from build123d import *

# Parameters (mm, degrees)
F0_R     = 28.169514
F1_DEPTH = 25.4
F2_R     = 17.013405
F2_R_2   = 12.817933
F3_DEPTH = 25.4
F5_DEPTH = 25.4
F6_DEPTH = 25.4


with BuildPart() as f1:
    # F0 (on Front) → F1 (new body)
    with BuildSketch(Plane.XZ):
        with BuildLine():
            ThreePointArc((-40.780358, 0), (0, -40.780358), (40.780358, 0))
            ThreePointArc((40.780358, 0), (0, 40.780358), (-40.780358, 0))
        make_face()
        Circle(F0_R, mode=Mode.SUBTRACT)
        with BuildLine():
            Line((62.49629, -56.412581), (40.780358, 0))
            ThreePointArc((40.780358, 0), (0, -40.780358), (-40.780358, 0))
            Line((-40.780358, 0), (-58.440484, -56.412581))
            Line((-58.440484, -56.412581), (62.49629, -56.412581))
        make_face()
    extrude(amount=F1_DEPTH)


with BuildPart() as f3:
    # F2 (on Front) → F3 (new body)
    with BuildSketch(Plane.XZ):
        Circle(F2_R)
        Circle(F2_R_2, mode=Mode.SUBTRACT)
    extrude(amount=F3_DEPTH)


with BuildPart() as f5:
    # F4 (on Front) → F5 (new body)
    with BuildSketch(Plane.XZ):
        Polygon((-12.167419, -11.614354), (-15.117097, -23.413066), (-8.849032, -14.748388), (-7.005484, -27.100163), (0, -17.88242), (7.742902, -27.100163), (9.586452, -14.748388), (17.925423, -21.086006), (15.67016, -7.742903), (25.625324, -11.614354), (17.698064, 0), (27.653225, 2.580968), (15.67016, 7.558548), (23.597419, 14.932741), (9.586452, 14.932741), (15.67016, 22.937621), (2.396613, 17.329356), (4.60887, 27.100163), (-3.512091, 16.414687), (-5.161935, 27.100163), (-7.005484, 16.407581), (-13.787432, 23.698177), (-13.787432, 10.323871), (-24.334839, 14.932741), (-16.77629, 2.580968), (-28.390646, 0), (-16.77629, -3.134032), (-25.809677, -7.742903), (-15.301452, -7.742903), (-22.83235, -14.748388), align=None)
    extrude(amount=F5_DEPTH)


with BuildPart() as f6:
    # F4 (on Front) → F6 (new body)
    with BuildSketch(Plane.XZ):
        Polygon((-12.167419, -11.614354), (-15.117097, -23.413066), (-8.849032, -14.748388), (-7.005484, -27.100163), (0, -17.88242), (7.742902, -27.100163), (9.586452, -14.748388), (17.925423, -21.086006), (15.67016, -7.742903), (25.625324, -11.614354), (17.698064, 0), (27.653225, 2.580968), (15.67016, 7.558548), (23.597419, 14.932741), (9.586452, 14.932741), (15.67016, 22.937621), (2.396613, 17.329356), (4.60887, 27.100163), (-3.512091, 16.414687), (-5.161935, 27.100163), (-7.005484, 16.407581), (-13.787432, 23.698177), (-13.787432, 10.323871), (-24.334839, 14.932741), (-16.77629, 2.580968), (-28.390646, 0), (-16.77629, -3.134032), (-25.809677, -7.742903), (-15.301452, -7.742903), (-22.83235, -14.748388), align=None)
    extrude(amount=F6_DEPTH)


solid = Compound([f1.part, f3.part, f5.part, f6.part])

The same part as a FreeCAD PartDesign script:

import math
import FreeCAD as App
import Part
import Sketcher
from FreeCAD import Vector
Q = App.Units.Quantity

doc = App.newDocument("Part")
params = doc.addObject("Spreadsheet::Sheet", "Params")
for row, (alias, value) in enumerate([
    ("pad1_length", "1 in"),
    ("pad2_length", "1 in"),
    ("pad3_length", "1 in"),
    ("pad4_length", "1 in"),
], start=1):
    params.set(f"A{row}", alias)
    params.set(f"B{row}", "=" + value)
    params.setAlias(f"B{row}", alias)

body = doc.addObject("PartDesign::Body", "Body")

sketch1 = body.newObject("Sketcher::SketchObject", "Sketch")
sketch1.AttachmentSupport = (doc.getObject("XZ_Plane"), [""])
sketch1.MapMode = "FlatFace"
sketch1.addGeometry([
    Part.ArcOfCircle(Part.Circle(Vector(0, 0, 0), Vector(0, 0, 1), 40.780358), math.radians(0), math.radians(180)),
    Part.LineSegment(Vector(-40.780358, 0, 0), Vector(-58.440484, -56.412581, 0)),
    Part.LineSegment(Vector(-58.440484, -56.412581, 0), Vector(62.49629, -56.412581, 0)),
    Part.LineSegment(Vector(62.49629, -56.412581, 0), Vector(40.780358, 0, 0)),
    Part.Circle(Vector(0, 0, 0), Vector(0, 0, 1), 28.169514),
], False)
sketch1.addConstraint([
    Sketcher.Constraint("Coincident", 0, 2, 1, 1),
    Sketcher.Constraint("Coincident", 1, 2, 2, 1),
    Sketcher.Constraint("Coincident", 2, 2, 3, 1),
    Sketcher.Constraint("Coincident", 3, 2, 0, 1),
    Sketcher.Constraint("Horizontal", 2),
    Sketcher.Constraint("Coincident", 0, 3, -1, 1),
    Sketcher.Constraint("Coincident", 4, 3, -1, 1),
    Sketcher.Constraint("PointOnObject", 0, 2, -1),
    Sketcher.Constraint("PointOnObject", 3, 2, -1),
    Sketcher.Constraint("Diameter", 4, 56.339028),
    Sketcher.Constraint("Radius", 0, 40.780358),
    Sketcher.Constraint("Distance", 1, 59.112261),
    Sketcher.Constraint("DistanceX", 2, 1, 2, 2, 120.936774),
    Sketcher.Constraint("DistanceY", 1, 2, -1, 1, 56.412581),
])
pad1 = body.newObject("PartDesign::Pad", "Pad")
pad1.Profile = sketch1
pad1.setExpression("Length", "Params.pad1_length")
body2 = doc.addObject("PartDesign::Body", "Body001")

sketch2 = body2.newObject("Sketcher::SketchObject", "Sketch001")
sketch2.AttachmentSupport = (doc.getObject("XZ_Plane001"), [""])
sketch2.MapMode = "FlatFace"
sketch2.addGeometry([
    Part.Circle(Vector(0, 0, 0), Vector(0, 0, 1), 17.013405),
    Part.Circle(Vector(0, 0, 0), Vector(0, 0, 1), 12.817933),
], False)
sketch2.addConstraint([
    Sketcher.Constraint("Coincident", 0, 3, -1, 1),
    Sketcher.Constraint("Coincident", 1, 3, -1, 1),
    Sketcher.Constraint("Diameter", 0, 34.02681),
    Sketcher.Constraint("Diameter", 1, 25.635866),
])
pad2 = body2.newObject("PartDesign::Pad", "Pad001")
pad2.Profile = sketch2
pad2.setExpression("Length", "Params.pad2_length")
body3 = doc.addObject("PartDesign::Body", "Body002")

sketch3 = body3.newObject("Sketcher::SketchObject", "Sketch002")
sketch3.AttachmentSupport = (doc.getObject("XZ_Plane002"), [""])
sketch3.MapMode = "FlatFace"
sketch3.addGeometry([
    Part.LineSegment(Vector(-12.167419, -11.614354, 0), Vector(-15.117097, -23.413066, 0)),
    Part.LineSegment(Vector(-15.117097, -23.413066, 0), Vector(-8.849032, -14.748388, 0)),
    Part.LineSegment(Vector(-8.849032, -14.748388, 0), Vector(-7.005484, -27.100163, 0)),
    Part.LineSegment(Vector(-7.005484, -27.100163, 0), Vector(0, -17.88242, 0)),
    Part.LineSegment(Vector(0, -17.88242, 0), Vector(7.742902, -27.100163, 0)),
    Part.LineSegment(Vector(7.742902, -27.100163, 0), Vector(9.586452, -14.748388, 0)),
    Part.LineSegment(Vector(9.586452, -14.748388, 0), Vector(17.925423, -21.086006, 0)),
    Part.LineSegment(Vector(17.925423, -21.086006, 0), Vector(15.67016, -7.742903, 0)),
    Part.LineSegment(Vector(15.67016, -7.742903, 0), Vector(25.625324, -11.614354, 0)),
    Part.LineSegment(Vector(25.625324, -11.614354, 0), Vector(17.698064, 0, 0)),
    Part.LineSegment(Vector(17.698064, 0, 0), Vector(27.653225, 2.580968, 0)),
    Part.LineSegment(Vector(27.653225, 2.580968, 0), Vector(15.67016, 7.558548, 0)),
    Part.LineSegment(Vector(15.67016, 7.558548, 0), Vector(23.597419, 14.932741, 0)),
    Part.LineSegment(Vector(23.597419, 14.932741, 0), Vector(9.586452, 14.932741, 0)),
    Part.LineSegment(Vector(9.586452, 14.932741, 0), Vector(15.67016, 22.937621, 0)),
    Part.LineSegment(Vector(15.67016, 22.937621, 0), Vector(2.396613, 17.329356, 0)),
    Part.LineSegment(Vector(2.396613, 17.329356, 0), Vector(4.60887, 27.100163, 0)),
    Part.LineSegment(Vector(4.60887, 27.100163, 0), Vector(-3.512091, 16.414687, 0)),
    Part.LineSegment(Vector(-3.512091, 16.414687, 0), Vector(-5.161935, 27.100163, 0)),
    Part.LineSegment(Vector(-5.161935, 27.100163, 0), Vector(-7.005484, 16.407581, 0)),
    Part.LineSegment(Vector(-7.005484, 16.407581, 0), Vector(-13.787432, 23.698177, 0)),
    Part.LineSegment(Vector(-13.787432, 23.698177, 0), Vector(-13.787432, 10.323871, 0)),
    Part.LineSegment(Vector(-13.787432, 10.323871, 0), Vector(-24.334839, 14.932741, 0)),
    Part.LineSegment(Vector(-24.334839, 14.932741, 0), Vector(-16.77629, 2.580968, 0)),
    Part.LineSegment(Vector(-16.77629, 2.580968, 0), Vector(-28.390646, 0, 0)),
    Part.LineSegment(Vector(-28.390646, 0, 0), Vector(-16.77629, -3.134032, 0)),
    Part.LineSegment(Vector(-16.77629, -3.134032, 0), Vector(-25.809677, -7.742903, 0)),
    Part.LineSegment(Vector(-25.809677, -7.742903, 0), Vector(-15.301452, -7.742903, 0)),
    Part.LineSegment(Vector(-15.301452, -7.742903, 0), Vector(-22.83235, -14.748388, 0)),
    Part.LineSegment(Vector(-22.83235, -14.748388, 0), Vector(-12.167419, -11.614354, 0)),
], False)
sketch3.addConstraint([
    Sketcher.Constraint("Coincident", 0, 2, 1, 1),
    Sketcher.Constraint("Coincident", 1, 2, 2, 1),
    Sketcher.Constraint("Coincident", 2, 2, 3, 1),
    Sketcher.Constraint("Coincident", 3, 2, 4, 1),
    Sketcher.Constraint("Coincident", 4, 2, 5, 1),
    Sketcher.Constraint("Coincident", 5, 2, 6, 1),
    Sketcher.Constraint("Coincident", 6, 2, 7, 1),
    Sketcher.Constraint("Coincident", 7, 2, 8, 1),
    Sketcher.Constraint("Coincident", 8, 2, 9, 1),
    Sketcher.Constraint("Coincident", 9, 2, 10, 1),
    Sketcher.Constraint("Coincident", 10, 2, 11, 1),
    Sketcher.Constraint("Coincident", 11, 2, 12, 1),
    Sketcher.Constraint("Coincident", 12, 2, 13, 1),
    Sketcher.Constraint("Coincident", 13, 2, 14, 1),
    Sketcher.Constraint("Coincident", 14, 2, 15, 1),
    Sketcher.Constraint("Coincident", 15, 2, 16, 1),
    Sketcher.Constraint("Coincident", 16, 2, 17, 1),
    Sketcher.Constraint("Coincident", 17, 2, 18, 1),
    Sketcher.Constraint("Coincident", 18, 2, 19, 1),
    Sketcher.Constraint("Coincident", 19, 2, 20, 1),
    Sketcher.Constraint("Coincident", 20, 2, 21, 1),
    Sketcher.Constraint("Coincident", 21, 2, 22, 1),
    Sketcher.Constraint("Coincident", 22, 2, 23, 1),
    Sketcher.Constraint("Coincident", 23, 2, 24, 1),
    Sketcher.Constraint("Coincident", 24, 2, 25, 1),
    Sketcher.Constraint("Coincident", 25, 2, 26, 1),
    Sketcher.Constraint("Coincident", 26, 2, 27, 1),
    Sketcher.Constraint("Coincident", 27, 2, 28, 1),
    Sketcher.Constraint("Coincident", 28, 2, 29, 1),
    Sketcher.Constraint("Coincident", 29, 2, 0, 1),
    Sketcher.Constraint("Horizontal", 13),
    Sketcher.Constraint("Vertical", 21),
    Sketcher.Constraint("Horizontal", 27),
    Sketcher.Constraint("PointOnObject", 3, 2, -2),
    Sketcher.Constraint("PointOnObject", 9, 2, -1),
    Sketcher.Constraint("PointOnObject", 24, 2, -1),
    Sketcher.Constraint("Perpendicular", 3, 6),
    Sketcher.Constraint("Perpendicular", 6, 14),
    Sketcher.Constraint("Parallel", 14, 17),
    Sketcher.Constraint("Perpendicular", 12, 20),
    Sketcher.Constraint("Perpendicular", 20, 28),
    Sketcher.Constraint("Horizontal", 2, 2, 4, 2),
    Sketcher.Constraint("Horizontal", 1, 2, 5, 2),
    Sketcher.Constraint("Horizontal", 16, 2, 18, 2),
    Sketcher.Constraint("Horizontal", 13, 2, 22, 2),
    Sketcher.Constraint("Horizontal", 10, 2, 23, 2),
    Sketcher.Constraint("Horizontal", 7, 2, 26, 2),
    Sketcher.Constraint("Horizontal", 5, 2, 28, 2),
    Sketcher.Constraint("Horizontal", 8, 2, 29, 2),
    Sketcher.Constraint("Vertical", 7, 2, 11, 2),
    Sketcher.Constraint("Vertical", 5, 2, 13, 2),
    Sketcher.Constraint("Vertical", 11, 2, 14, 2),
    Sketcher.Constraint("Vertical", 2, 2, 19, 2),
    Sketcher.Constraint("Vertical", 23, 2, 25, 2),
    Sketcher.Constraint("Equal", 2, 5),
    Sketcher.Constraint("DistanceX", 0, 2, 4, 2, Q("0.9 in")),
    Sketcher.Constraint("DistanceY", 25, 2, 23, 2, Q("0.225 in")),
    Sketcher.Constraint("DistanceX", 6, 2, 8, 2, 7.699901),
    Sketcher.Constraint("DistanceX", 8, 2, 10, 2, 2.027901),
    Sketcher.Constraint("DistanceX", 20, 2, 16, 2, 18.396302),
    Sketcher.Constraint("DistanceX", 23, 2, 17, 2, 13.264199),
    Sketcher.Constraint("DistanceX", 28, 2, 27, 2, 7.530898),
    Sketcher.Constraint("Distance", 1, 10.694171),
    Sketcher.Constraint("Distance", 3, 11.57772),
    Sketcher.Constraint("Distance", 6, 10.47396),
    Sketcher.Constraint("Distance", 10, 10.28429),
    Sketcher.Constraint("Distance", 15, 14.409708),
    Sketcher.Constraint("Distance", 16, 10.018121),
    Sketcher.Constraint("Distance", 17, 13.42123),
    Sketcher.Constraint("Distance", 20, 9.957289),
    Sketcher.Constraint("Distance", 23, 14.480952),
    Sketcher.Constraint("Distance", 26, 10.141192),
    Sketcher.Constraint("DistanceX", 13, 2, 13, 1, 14.010967),
    Sketcher.Constraint("DistanceX", 27, 1, 27, 2, 10.508225),
    Sketcher.Constraint("DistanceY", 21, 2, 21, 1, 13.374306),
    Sketcher.Constraint("DistanceX", 1, 2, -1, 1, 8.849032),
    Sketcher.Constraint("DistanceY", 3, 2, -1, 1, 17.88242),
    Sketcher.Constraint("DistanceX", -1, 1, 7, 2, 15.67016),
    Sketcher.Constraint("DistanceX", -1, 1, 12, 2, 23.597419),
    Sketcher.Constraint("DistanceY", -1, 1, 12, 2, 14.932741),
    Sketcher.Constraint("DistanceY", -1, 1, 14, 2, 22.937621),
    Sketcher.Constraint("DistanceX", -1, 1, 16, 2, 4.60887),
    Sketcher.Constraint("DistanceY", -1, 1, 19, 2, 16.407581),
    Sketcher.Constraint("DistanceX", 22, 2, -1, 1, 24.334839),
    Sketcher.Constraint("DistanceX", 27, 2, -1, 1, 15.301452),
    Sketcher.Constraint("DistanceX", 29, 2, -1, 1, 12.167419),
    Sketcher.Constraint("DistanceY", 8, 2, 7, 2, 3.871451),
    Sketcher.Constraint("DistanceX", 15, 2, 13, 2, 7.189839),
    Sketcher.Constraint("DistanceX", 19, 2, 18, 2, 1.843549),
    Sketcher.Constraint("DistanceX", 24, 2, 0, 2, 13.273549),
])
pad3 = body3.newObject("PartDesign::Pad", "Pad002")
pad3.Profile = sketch3
pad3.setExpression("Length", "Params.pad3_length")
body4 = doc.addObject("PartDesign::Body", "Body003")

sketch4 = body4.newObject("Sketcher::SketchObject", "Sketch003")
sketch4.AttachmentSupport = (doc.getObject("XZ_Plane003"), [""])
sketch4.MapMode = "FlatFace"
sketch4.addGeometry([
    Part.LineSegment(Vector(-12.167419, -11.614354, 0), Vector(-15.117097, -23.413066, 0)),
    Part.LineSegment(Vector(-15.117097, -23.413066, 0), Vector(-8.849032, -14.748388, 0)),
    Part.LineSegment(Vector(-8.849032, -14.748388, 0), Vector(-7.005484, -27.100163, 0)),
    Part.LineSegment(Vector(-7.005484, -27.100163, 0), Vector(0, -17.88242, 0)),
    Part.LineSegment(Vector(0, -17.88242, 0), Vector(7.742902, -27.100163, 0)),
    Part.LineSegment(Vector(7.742902, -27.100163, 0), Vector(9.586452, -14.748388, 0)),
    Part.LineSegment(Vector(9.586452, -14.748388, 0), Vector(17.925423, -21.086006, 0)),
    Part.LineSegment(Vector(17.925423, -21.086006, 0), Vector(15.67016, -7.742903, 0)),
    Part.LineSegment(Vector(15.67016, -7.742903, 0), Vector(25.625324, -11.614354, 0)),
    Part.LineSegment(Vector(25.625324, -11.614354, 0), Vector(17.698064, 0, 0)),
    Part.LineSegment(Vector(17.698064, 0, 0), Vector(27.653225, 2.580968, 0)),
    Part.LineSegment(Vector(27.653225, 2.580968, 0), Vector(15.67016, 7.558548, 0)),
    Part.LineSegment(Vector(15.67016, 7.558548, 0), Vector(23.597419, 14.932741, 0)),
    Part.LineSegment(Vector(23.597419, 14.932741, 0), Vector(9.586452, 14.932741, 0)),
    Part.LineSegment(Vector(9.586452, 14.932741, 0), Vector(15.67016, 22.937621, 0)),
    Part.LineSegment(Vector(15.67016, 22.937621, 0), Vector(2.396613, 17.329356, 0)),
    Part.LineSegment(Vector(2.396613, 17.329356, 0), Vector(4.60887, 27.100163, 0)),
    Part.LineSegment(Vector(4.60887, 27.100163, 0), Vector(-3.512091, 16.414687, 0)),
    Part.LineSegment(Vector(-3.512091, 16.414687, 0), Vector(-5.161935, 27.100163, 0)),
    Part.LineSegment(Vector(-5.161935, 27.100163, 0), Vector(-7.005484, 16.407581, 0)),
    Part.LineSegment(Vector(-7.005484, 16.407581, 0), Vector(-13.787432, 23.698177, 0)),
    Part.LineSegment(Vector(-13.787432, 23.698177, 0), Vector(-13.787432, 10.323871, 0)),
    Part.LineSegment(Vector(-13.787432, 10.323871, 0), Vector(-24.334839, 14.932741, 0)),
    Part.LineSegment(Vector(-24.334839, 14.932741, 0), Vector(-16.77629, 2.580968, 0)),
    Part.LineSegment(Vector(-16.77629, 2.580968, 0), Vector(-28.390646, 0, 0)),
    Part.LineSegment(Vector(-28.390646, 0, 0), Vector(-16.77629, -3.134032, 0)),
    Part.LineSegment(Vector(-16.77629, -3.134032, 0), Vector(-25.809677, -7.742903, 0)),
    Part.LineSegment(Vector(-25.809677, -7.742903, 0), Vector(-15.301452, -7.742903, 0)),
    Part.LineSegment(Vector(-15.301452, -7.742903, 0), Vector(-22.83235, -14.748388, 0)),
    Part.LineSegment(Vector(-22.83235, -14.748388, 0), Vector(-12.167419, -11.614354, 0)),
], False)
sketch4.addConstraint([
    Sketcher.Constraint("Coincident", 0, 2, 1, 1),
    Sketcher.Constraint("Coincident", 1, 2, 2, 1),
    Sketcher.Constraint("Coincident", 2, 2, 3, 1),
    Sketcher.Constraint("Coincident", 3, 2, 4, 1),
    Sketcher.Constraint("Coincident", 4, 2, 5, 1),
    Sketcher.Constraint("Coincident", 5, 2, 6, 1),
    Sketcher.Constraint("Coincident", 6, 2, 7, 1),
    Sketcher.Constraint("Coincident", 7, 2, 8, 1),
    Sketcher.Constraint("Coincident", 8, 2, 9, 1),
    Sketcher.Constraint("Coincident", 9, 2, 10, 1),
    Sketcher.Constraint("Coincident", 10, 2, 11, 1),
    Sketcher.Constraint("Coincident", 11, 2, 12, 1),
    Sketcher.Constraint("Coincident", 12, 2, 13, 1),
    Sketcher.Constraint("Coincident", 13, 2, 14, 1),
    Sketcher.Constraint("Coincident", 14, 2, 15, 1),
    Sketcher.Constraint("Coincident", 15, 2, 16, 1),
    Sketcher.Constraint("Coincident", 16, 2, 17, 1),
    Sketcher.Constraint("Coincident", 17, 2, 18, 1),
    Sketcher.Constraint("Coincident", 18, 2, 19, 1),
    Sketcher.Constraint("Coincident", 19, 2, 20, 1),
    Sketcher.Constraint("Coincident", 20, 2, 21, 1),
    Sketcher.Constraint("Coincident", 21, 2, 22, 1),
    Sketcher.Constraint("Coincident", 22, 2, 23, 1),
    Sketcher.Constraint("Coincident", 23, 2, 24, 1),
    Sketcher.Constraint("Coincident", 24, 2, 25, 1),
    Sketcher.Constraint("Coincident", 25, 2, 26, 1),
    Sketcher.Constraint("Coincident", 26, 2, 27, 1),
    Sketcher.Constraint("Coincident", 27, 2, 28, 1),
    Sketcher.Constraint("Coincident", 28, 2, 29, 1),
    Sketcher.Constraint("Coincident", 29, 2, 0, 1),
    Sketcher.Constraint("Horizontal", 13),
    Sketcher.Constraint("Vertical", 21),
    Sketcher.Constraint("Horizontal", 27),
    Sketcher.Constraint("PointOnObject", 3, 2, -2),
    Sketcher.Constraint("PointOnObject", 9, 2, -1),
    Sketcher.Constraint("PointOnObject", 24, 2, -1),
    Sketcher.Constraint("Perpendicular", 3, 6),
    Sketcher.Constraint("Perpendicular", 6, 14),
    Sketcher.Constraint("Parallel", 14, 17),
    Sketcher.Constraint("Perpendicular", 12, 20),
    Sketcher.Constraint("Perpendicular", 20, 28),
    Sketcher.Constraint("Horizontal", 2, 2, 4, 2),
    Sketcher.Constraint("Horizontal", 1, 2, 5, 2),
    Sketcher.Constraint("Horizontal", 16, 2, 18, 2),
    Sketcher.Constraint("Horizontal", 13, 2, 22, 2),
    Sketcher.Constraint("Horizontal", 10, 2, 23, 2),
    Sketcher.Constraint("Horizontal", 7, 2, 26, 2),
    Sketcher.Constraint("Horizontal", 5, 2, 28, 2),
    Sketcher.Constraint("Horizontal", 8, 2, 29, 2),
    Sketcher.Constraint("Vertical", 7, 2, 11, 2),
    Sketcher.Constraint("Vertical", 5, 2, 13, 2),
    Sketcher.Constraint("Vertical", 11, 2, 14, 2),
    Sketcher.Constraint("Vertical", 2, 2, 19, 2),
    Sketcher.Constraint("Vertical", 23, 2, 25, 2),
    Sketcher.Constraint("Equal", 2, 5),
    Sketcher.Constraint("DistanceX", 0, 2, 4, 2, Q("0.9 in")),
    Sketcher.Constraint("DistanceY", 25, 2, 23, 2, Q("0.225 in")),
    Sketcher.Constraint("DistanceX", 6, 2, 8, 2, 7.699901),
    Sketcher.Constraint("DistanceX", 8, 2, 10, 2, 2.027901),
    Sketcher.Constraint("DistanceX", 20, 2, 16, 2, 18.396302),
    Sketcher.Constraint("DistanceX", 23, 2, 17, 2, 13.264199),
    Sketcher.Constraint("DistanceX", 28, 2, 27, 2, 7.530898),
    Sketcher.Constraint("Distance", 1, 10.694171),
    Sketcher.Constraint("Distance", 3, 11.57772),
    Sketcher.Constraint("Distance", 6, 10.47396),
    Sketcher.Constraint("Distance", 10, 10.28429),
    Sketcher.Constraint("Distance", 15, 14.409708),
    Sketcher.Constraint("Distance", 16, 10.018121),
    Sketcher.Constraint("Distance", 17, 13.42123),
    Sketcher.Constraint("Distance", 20, 9.957289),
    Sketcher.Constraint("Distance", 23, 14.480952),
    Sketcher.Constraint("Distance", 26, 10.141192),
    Sketcher.Constraint("DistanceX", 13, 2, 13, 1, 14.010967),
    Sketcher.Constraint("DistanceX", 27, 1, 27, 2, 10.508225),
    Sketcher.Constraint("DistanceY", 21, 2, 21, 1, 13.374306),
    Sketcher.Constraint("DistanceX", 1, 2, -1, 1, 8.849032),
    Sketcher.Constraint("DistanceY", 3, 2, -1, 1, 17.88242),
    Sketcher.Constraint("DistanceX", -1, 1, 7, 2, 15.67016),
    Sketcher.Constraint("DistanceX", -1, 1, 12, 2, 23.597419),
    Sketcher.Constraint("DistanceY", -1, 1, 12, 2, 14.932741),
    Sketcher.Constraint("DistanceY", -1, 1, 14, 2, 22.937621),
    Sketcher.Constraint("DistanceX", -1, 1, 16, 2, 4.60887),
    Sketcher.Constraint("DistanceY", -1, 1, 19, 2, 16.407581),
    Sketcher.Constraint("DistanceX", 22, 2, -1, 1, 24.334839),
    Sketcher.Constraint("DistanceX", 27, 2, -1, 1, 15.301452),
    Sketcher.Constraint("DistanceX", 29, 2, -1, 1, 12.167419),
    Sketcher.Constraint("DistanceY", 8, 2, 7, 2, 3.871451),
    Sketcher.Constraint("DistanceX", 15, 2, 13, 2, 7.189839),
    Sketcher.Constraint("DistanceX", 19, 2, 18, 2, 1.843549),
    Sketcher.Constraint("DistanceX", 24, 2, 0, 2, 13.273549),
])
pad4 = body4.newObject("PartDesign::Pad", "Pad003")
pad4.Profile = sketch4
pad4.setExpression("Length", "Params.pad4_length")

doc.recompute()
